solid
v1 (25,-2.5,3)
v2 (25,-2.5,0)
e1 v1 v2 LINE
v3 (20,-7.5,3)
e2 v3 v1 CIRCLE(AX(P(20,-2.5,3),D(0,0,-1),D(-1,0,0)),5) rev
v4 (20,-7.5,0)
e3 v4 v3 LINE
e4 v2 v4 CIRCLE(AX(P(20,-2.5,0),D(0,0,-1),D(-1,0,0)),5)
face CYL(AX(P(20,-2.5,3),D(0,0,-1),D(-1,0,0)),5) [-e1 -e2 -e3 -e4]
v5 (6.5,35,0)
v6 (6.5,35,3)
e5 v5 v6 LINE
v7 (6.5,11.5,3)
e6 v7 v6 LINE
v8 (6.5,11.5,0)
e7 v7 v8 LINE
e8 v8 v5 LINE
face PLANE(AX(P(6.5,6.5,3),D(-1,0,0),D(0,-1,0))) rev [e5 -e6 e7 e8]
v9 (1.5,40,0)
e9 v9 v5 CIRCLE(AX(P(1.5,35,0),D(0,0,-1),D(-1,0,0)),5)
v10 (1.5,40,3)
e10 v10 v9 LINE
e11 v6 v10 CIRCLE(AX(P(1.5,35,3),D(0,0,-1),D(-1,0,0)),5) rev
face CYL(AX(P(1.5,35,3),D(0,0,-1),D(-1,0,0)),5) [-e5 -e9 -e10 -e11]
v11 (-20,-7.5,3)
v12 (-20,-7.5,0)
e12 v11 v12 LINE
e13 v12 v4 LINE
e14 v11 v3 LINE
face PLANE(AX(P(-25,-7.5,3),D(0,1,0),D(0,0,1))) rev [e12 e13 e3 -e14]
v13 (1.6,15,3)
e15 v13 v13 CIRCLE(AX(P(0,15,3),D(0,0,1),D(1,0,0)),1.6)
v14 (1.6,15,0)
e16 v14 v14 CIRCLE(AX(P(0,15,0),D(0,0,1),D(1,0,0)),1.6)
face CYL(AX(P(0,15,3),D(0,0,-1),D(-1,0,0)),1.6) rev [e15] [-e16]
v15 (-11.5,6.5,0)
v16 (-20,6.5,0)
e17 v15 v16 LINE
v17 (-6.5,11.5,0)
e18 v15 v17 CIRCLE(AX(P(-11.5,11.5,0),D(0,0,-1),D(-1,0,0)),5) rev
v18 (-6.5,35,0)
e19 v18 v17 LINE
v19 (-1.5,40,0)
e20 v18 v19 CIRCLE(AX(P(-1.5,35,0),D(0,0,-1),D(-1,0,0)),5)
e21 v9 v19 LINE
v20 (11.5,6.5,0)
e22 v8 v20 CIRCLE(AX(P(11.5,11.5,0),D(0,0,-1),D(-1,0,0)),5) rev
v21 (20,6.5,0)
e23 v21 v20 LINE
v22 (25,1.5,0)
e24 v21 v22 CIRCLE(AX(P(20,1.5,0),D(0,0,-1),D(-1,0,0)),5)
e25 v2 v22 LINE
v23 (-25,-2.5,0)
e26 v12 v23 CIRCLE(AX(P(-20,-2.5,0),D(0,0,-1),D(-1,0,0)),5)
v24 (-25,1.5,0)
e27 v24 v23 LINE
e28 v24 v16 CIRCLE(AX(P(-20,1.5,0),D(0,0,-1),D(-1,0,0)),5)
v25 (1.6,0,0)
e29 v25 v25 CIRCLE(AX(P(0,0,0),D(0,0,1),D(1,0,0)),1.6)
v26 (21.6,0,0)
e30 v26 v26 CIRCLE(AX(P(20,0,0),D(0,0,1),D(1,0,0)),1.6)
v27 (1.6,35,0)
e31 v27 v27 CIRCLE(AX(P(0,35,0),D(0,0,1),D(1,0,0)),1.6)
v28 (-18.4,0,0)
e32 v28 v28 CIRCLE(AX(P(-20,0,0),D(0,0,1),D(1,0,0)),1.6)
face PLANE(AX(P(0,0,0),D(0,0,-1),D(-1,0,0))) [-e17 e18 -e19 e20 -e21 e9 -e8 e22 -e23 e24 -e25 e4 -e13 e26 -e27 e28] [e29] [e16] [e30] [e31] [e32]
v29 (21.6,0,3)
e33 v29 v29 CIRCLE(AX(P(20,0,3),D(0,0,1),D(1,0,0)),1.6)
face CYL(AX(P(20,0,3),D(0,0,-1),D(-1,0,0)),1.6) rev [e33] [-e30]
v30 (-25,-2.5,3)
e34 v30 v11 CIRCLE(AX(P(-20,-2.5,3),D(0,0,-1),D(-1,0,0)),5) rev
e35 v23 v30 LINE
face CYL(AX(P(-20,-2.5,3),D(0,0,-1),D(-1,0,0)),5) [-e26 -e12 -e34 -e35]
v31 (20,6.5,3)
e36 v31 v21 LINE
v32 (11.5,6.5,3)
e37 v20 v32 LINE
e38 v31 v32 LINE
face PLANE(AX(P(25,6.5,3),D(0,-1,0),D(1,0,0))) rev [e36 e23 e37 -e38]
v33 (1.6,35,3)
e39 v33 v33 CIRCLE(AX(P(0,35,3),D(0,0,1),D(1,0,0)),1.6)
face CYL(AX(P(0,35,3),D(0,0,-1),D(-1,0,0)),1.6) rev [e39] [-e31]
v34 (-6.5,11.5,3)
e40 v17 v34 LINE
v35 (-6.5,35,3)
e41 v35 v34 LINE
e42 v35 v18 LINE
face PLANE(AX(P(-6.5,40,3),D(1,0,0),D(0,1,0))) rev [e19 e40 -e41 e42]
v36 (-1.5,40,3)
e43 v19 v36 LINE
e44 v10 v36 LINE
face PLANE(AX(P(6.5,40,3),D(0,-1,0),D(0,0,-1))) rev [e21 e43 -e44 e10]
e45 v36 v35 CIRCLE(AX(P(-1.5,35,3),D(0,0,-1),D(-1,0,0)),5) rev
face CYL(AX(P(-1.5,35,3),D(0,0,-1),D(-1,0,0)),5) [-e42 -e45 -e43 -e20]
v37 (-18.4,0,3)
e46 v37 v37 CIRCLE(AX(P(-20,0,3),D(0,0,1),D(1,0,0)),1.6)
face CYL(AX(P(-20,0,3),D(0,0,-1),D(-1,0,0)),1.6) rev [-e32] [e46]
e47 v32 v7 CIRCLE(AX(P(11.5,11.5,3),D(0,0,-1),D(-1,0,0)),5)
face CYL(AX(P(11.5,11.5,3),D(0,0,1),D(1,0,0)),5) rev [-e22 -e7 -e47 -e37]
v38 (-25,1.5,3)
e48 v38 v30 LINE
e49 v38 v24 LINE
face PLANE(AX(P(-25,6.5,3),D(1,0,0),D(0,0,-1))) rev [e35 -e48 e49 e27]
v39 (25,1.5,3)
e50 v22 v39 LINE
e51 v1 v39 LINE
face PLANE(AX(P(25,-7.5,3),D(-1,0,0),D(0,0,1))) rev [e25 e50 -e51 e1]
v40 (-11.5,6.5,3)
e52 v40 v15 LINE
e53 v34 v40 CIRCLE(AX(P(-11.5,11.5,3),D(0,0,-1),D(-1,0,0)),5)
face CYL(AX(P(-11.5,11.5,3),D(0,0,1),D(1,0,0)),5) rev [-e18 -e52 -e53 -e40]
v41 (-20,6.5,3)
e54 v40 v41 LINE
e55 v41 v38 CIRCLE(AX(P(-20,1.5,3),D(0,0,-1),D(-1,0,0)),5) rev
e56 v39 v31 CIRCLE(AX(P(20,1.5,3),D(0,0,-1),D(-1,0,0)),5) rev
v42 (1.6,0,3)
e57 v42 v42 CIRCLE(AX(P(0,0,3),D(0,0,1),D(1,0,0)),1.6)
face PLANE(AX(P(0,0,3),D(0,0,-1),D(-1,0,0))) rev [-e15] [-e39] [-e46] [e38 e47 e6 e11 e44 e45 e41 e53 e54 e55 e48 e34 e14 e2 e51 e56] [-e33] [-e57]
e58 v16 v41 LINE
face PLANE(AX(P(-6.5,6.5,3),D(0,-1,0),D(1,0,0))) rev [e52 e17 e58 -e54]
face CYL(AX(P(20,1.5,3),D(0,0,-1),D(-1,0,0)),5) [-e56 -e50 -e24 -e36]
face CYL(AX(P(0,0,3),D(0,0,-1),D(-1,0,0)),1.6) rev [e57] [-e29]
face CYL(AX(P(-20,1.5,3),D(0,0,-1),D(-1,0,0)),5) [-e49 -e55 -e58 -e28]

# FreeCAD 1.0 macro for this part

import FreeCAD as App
import Part
import Sketcher
from FreeCAD import Vector
Q = App.Units.Quantity


def edges_at(feature, points):
    """Names of the edges that pass closest to the given points."""
    edges = feature.Shape.Edges
    near = lambda p: min(range(len(edges)), key=lambda i: edges[i].distToShape(Part.Vertex(*p))[0])
    return sorted({f"Edge{near(p) + 1}" for p in points})


def add_polygon(sketch, points):
    """Adds a closed chain of lines whose ends are joined by coincident constraints."""
    first, n = sketch.GeometryCount, len(points)
    for a, b in zip(points, points[1:] + points[:1]):
        sketch.addGeometry(Part.LineSegment(App.Vector(*a, 0), App.Vector(*b, 0)), False)
    for i in range(n):
        sketch.addConstraint(Sketcher.Constraint("Coincident", first + i, 2, first + (i + 1) % n, 1))

doc = App.newDocument("Part")
body = doc.addObject("PartDesign::Body", "Body")

sketch1 = body.newObject("Sketcher::SketchObject", "Sketch")
sketch1.AttachmentSupport = (doc.getObject("XY_Plane"), [""])
sketch1.MapMode = "FlatFace"
add_polygon(sketch1, [(-6.5, 6.5), (-25, 6.5), (-25, -7.5), (25, -7.5), (25, 6.5), (6.5, 6.5), (6.5, 40), (-6.5, 40)])
sketch1.addGeometry(Part.Circle(Vector(-20, 0, 0), Vector(0, 0, 1), 1.6), False)
sketch1.addGeometry(Part.Circle(Vector(0, 0, 0), Vector(0, 0, 1), 1.6), False)
sketch1.addGeometry(Part.Circle(Vector(20, 0, 0), Vector(0, 0, 1), 1.6), False)
sketch1.addGeometry(Part.Circle(Vector(0, 15, 0), Vector(0, 0, 1), 1.6), False)
sketch1.addGeometry(Part.Circle(Vector(0, 35, 0), Vector(0, 0, 1), 1.6), False)
sketch1.addConstraint([
    Sketcher.Constraint("Horizontal", 0),
    Sketcher.Constraint("Vertical", 1),
    Sketcher.Constraint("Horizontal", 2),
    Sketcher.Constraint("Vertical", 3),
    Sketcher.Constraint("Horizontal", 4),
    Sketcher.Constraint("Vertical", 5),
    Sketcher.Constraint("Horizontal", 6),
    Sketcher.Constraint("Vertical", 7),
    Sketcher.Constraint("Coincident", 9, 3, -1, 1),
    Sketcher.Constraint("Equal", 8, 9),
    Sketcher.Constraint("Equal", 9, 10),
    Sketcher.Constraint("Equal", 10, 11),
    Sketcher.Constraint("Equal", 11, 12),
    Sketcher.Constraint("Symmetric", 8, 3, 10, 3, -1, 1),
    Sketcher.Constraint("Symmetric", 0, 2, 3, 2, -2),
    Sketcher.Constraint("PointOnObject", 8, 3, -1),
    Sketcher.Constraint("PointOnObject", 11, 3, -2),
    Sketcher.Constraint("PointOnObject", 12, 3, -2),
    Sketcher.Constraint("Equal", 0, 4),
    Sketcher.Constraint("Diameter", 8, Q("3.2 mm")),
    Sketcher.Constraint("DistanceX", 2, 1, 2, 2, Q("50 mm")),
    Sketcher.Constraint("DistanceX", 6, 2, 6, 1, Q("13 mm")),
    Sketcher.Constraint("DistanceY", 1, 2, 1, 1, Q("14 mm")),
    Sketcher.Constraint("DistanceY", 5, 1, 5, 2, Q("33.5 mm")),
    Sketcher.Constraint("DistanceX", 8, 3, -1, 1, Q("20 mm")),
    Sketcher.Constraint("DistanceY", -1, 1, 11, 3, Q("15 mm")),
    Sketcher.Constraint("DistanceY", -1, 1, 12, 3, Q("35 mm")),
    Sketcher.Constraint("DistanceY", -1, 1, 5, 2, Q("40 mm")),
])
pad1 = body.newObject("PartDesign::Pad", "Pad")
pad1.Profile = sketch1
pad1.Length = 3
doc.recompute()

fillet = body.newObject("PartDesign::Fillet", "Fillet")
fillet.Base = (pad1, edges_at(pad1, [
    (-6.5, 40, 1.5),
    (6.5, 40, 1.5),
    (6.5, 6.5, 1.5),
    (25, 6.5, 1.5),
    (25, -7.5, 1.5),
    (-25, -7.5, 1.5),
    (-25, 6.5, 1.5),
    (-6.5, 6.5, 1.5),
]))
fillet.Radius = 5

doc.recompute()
